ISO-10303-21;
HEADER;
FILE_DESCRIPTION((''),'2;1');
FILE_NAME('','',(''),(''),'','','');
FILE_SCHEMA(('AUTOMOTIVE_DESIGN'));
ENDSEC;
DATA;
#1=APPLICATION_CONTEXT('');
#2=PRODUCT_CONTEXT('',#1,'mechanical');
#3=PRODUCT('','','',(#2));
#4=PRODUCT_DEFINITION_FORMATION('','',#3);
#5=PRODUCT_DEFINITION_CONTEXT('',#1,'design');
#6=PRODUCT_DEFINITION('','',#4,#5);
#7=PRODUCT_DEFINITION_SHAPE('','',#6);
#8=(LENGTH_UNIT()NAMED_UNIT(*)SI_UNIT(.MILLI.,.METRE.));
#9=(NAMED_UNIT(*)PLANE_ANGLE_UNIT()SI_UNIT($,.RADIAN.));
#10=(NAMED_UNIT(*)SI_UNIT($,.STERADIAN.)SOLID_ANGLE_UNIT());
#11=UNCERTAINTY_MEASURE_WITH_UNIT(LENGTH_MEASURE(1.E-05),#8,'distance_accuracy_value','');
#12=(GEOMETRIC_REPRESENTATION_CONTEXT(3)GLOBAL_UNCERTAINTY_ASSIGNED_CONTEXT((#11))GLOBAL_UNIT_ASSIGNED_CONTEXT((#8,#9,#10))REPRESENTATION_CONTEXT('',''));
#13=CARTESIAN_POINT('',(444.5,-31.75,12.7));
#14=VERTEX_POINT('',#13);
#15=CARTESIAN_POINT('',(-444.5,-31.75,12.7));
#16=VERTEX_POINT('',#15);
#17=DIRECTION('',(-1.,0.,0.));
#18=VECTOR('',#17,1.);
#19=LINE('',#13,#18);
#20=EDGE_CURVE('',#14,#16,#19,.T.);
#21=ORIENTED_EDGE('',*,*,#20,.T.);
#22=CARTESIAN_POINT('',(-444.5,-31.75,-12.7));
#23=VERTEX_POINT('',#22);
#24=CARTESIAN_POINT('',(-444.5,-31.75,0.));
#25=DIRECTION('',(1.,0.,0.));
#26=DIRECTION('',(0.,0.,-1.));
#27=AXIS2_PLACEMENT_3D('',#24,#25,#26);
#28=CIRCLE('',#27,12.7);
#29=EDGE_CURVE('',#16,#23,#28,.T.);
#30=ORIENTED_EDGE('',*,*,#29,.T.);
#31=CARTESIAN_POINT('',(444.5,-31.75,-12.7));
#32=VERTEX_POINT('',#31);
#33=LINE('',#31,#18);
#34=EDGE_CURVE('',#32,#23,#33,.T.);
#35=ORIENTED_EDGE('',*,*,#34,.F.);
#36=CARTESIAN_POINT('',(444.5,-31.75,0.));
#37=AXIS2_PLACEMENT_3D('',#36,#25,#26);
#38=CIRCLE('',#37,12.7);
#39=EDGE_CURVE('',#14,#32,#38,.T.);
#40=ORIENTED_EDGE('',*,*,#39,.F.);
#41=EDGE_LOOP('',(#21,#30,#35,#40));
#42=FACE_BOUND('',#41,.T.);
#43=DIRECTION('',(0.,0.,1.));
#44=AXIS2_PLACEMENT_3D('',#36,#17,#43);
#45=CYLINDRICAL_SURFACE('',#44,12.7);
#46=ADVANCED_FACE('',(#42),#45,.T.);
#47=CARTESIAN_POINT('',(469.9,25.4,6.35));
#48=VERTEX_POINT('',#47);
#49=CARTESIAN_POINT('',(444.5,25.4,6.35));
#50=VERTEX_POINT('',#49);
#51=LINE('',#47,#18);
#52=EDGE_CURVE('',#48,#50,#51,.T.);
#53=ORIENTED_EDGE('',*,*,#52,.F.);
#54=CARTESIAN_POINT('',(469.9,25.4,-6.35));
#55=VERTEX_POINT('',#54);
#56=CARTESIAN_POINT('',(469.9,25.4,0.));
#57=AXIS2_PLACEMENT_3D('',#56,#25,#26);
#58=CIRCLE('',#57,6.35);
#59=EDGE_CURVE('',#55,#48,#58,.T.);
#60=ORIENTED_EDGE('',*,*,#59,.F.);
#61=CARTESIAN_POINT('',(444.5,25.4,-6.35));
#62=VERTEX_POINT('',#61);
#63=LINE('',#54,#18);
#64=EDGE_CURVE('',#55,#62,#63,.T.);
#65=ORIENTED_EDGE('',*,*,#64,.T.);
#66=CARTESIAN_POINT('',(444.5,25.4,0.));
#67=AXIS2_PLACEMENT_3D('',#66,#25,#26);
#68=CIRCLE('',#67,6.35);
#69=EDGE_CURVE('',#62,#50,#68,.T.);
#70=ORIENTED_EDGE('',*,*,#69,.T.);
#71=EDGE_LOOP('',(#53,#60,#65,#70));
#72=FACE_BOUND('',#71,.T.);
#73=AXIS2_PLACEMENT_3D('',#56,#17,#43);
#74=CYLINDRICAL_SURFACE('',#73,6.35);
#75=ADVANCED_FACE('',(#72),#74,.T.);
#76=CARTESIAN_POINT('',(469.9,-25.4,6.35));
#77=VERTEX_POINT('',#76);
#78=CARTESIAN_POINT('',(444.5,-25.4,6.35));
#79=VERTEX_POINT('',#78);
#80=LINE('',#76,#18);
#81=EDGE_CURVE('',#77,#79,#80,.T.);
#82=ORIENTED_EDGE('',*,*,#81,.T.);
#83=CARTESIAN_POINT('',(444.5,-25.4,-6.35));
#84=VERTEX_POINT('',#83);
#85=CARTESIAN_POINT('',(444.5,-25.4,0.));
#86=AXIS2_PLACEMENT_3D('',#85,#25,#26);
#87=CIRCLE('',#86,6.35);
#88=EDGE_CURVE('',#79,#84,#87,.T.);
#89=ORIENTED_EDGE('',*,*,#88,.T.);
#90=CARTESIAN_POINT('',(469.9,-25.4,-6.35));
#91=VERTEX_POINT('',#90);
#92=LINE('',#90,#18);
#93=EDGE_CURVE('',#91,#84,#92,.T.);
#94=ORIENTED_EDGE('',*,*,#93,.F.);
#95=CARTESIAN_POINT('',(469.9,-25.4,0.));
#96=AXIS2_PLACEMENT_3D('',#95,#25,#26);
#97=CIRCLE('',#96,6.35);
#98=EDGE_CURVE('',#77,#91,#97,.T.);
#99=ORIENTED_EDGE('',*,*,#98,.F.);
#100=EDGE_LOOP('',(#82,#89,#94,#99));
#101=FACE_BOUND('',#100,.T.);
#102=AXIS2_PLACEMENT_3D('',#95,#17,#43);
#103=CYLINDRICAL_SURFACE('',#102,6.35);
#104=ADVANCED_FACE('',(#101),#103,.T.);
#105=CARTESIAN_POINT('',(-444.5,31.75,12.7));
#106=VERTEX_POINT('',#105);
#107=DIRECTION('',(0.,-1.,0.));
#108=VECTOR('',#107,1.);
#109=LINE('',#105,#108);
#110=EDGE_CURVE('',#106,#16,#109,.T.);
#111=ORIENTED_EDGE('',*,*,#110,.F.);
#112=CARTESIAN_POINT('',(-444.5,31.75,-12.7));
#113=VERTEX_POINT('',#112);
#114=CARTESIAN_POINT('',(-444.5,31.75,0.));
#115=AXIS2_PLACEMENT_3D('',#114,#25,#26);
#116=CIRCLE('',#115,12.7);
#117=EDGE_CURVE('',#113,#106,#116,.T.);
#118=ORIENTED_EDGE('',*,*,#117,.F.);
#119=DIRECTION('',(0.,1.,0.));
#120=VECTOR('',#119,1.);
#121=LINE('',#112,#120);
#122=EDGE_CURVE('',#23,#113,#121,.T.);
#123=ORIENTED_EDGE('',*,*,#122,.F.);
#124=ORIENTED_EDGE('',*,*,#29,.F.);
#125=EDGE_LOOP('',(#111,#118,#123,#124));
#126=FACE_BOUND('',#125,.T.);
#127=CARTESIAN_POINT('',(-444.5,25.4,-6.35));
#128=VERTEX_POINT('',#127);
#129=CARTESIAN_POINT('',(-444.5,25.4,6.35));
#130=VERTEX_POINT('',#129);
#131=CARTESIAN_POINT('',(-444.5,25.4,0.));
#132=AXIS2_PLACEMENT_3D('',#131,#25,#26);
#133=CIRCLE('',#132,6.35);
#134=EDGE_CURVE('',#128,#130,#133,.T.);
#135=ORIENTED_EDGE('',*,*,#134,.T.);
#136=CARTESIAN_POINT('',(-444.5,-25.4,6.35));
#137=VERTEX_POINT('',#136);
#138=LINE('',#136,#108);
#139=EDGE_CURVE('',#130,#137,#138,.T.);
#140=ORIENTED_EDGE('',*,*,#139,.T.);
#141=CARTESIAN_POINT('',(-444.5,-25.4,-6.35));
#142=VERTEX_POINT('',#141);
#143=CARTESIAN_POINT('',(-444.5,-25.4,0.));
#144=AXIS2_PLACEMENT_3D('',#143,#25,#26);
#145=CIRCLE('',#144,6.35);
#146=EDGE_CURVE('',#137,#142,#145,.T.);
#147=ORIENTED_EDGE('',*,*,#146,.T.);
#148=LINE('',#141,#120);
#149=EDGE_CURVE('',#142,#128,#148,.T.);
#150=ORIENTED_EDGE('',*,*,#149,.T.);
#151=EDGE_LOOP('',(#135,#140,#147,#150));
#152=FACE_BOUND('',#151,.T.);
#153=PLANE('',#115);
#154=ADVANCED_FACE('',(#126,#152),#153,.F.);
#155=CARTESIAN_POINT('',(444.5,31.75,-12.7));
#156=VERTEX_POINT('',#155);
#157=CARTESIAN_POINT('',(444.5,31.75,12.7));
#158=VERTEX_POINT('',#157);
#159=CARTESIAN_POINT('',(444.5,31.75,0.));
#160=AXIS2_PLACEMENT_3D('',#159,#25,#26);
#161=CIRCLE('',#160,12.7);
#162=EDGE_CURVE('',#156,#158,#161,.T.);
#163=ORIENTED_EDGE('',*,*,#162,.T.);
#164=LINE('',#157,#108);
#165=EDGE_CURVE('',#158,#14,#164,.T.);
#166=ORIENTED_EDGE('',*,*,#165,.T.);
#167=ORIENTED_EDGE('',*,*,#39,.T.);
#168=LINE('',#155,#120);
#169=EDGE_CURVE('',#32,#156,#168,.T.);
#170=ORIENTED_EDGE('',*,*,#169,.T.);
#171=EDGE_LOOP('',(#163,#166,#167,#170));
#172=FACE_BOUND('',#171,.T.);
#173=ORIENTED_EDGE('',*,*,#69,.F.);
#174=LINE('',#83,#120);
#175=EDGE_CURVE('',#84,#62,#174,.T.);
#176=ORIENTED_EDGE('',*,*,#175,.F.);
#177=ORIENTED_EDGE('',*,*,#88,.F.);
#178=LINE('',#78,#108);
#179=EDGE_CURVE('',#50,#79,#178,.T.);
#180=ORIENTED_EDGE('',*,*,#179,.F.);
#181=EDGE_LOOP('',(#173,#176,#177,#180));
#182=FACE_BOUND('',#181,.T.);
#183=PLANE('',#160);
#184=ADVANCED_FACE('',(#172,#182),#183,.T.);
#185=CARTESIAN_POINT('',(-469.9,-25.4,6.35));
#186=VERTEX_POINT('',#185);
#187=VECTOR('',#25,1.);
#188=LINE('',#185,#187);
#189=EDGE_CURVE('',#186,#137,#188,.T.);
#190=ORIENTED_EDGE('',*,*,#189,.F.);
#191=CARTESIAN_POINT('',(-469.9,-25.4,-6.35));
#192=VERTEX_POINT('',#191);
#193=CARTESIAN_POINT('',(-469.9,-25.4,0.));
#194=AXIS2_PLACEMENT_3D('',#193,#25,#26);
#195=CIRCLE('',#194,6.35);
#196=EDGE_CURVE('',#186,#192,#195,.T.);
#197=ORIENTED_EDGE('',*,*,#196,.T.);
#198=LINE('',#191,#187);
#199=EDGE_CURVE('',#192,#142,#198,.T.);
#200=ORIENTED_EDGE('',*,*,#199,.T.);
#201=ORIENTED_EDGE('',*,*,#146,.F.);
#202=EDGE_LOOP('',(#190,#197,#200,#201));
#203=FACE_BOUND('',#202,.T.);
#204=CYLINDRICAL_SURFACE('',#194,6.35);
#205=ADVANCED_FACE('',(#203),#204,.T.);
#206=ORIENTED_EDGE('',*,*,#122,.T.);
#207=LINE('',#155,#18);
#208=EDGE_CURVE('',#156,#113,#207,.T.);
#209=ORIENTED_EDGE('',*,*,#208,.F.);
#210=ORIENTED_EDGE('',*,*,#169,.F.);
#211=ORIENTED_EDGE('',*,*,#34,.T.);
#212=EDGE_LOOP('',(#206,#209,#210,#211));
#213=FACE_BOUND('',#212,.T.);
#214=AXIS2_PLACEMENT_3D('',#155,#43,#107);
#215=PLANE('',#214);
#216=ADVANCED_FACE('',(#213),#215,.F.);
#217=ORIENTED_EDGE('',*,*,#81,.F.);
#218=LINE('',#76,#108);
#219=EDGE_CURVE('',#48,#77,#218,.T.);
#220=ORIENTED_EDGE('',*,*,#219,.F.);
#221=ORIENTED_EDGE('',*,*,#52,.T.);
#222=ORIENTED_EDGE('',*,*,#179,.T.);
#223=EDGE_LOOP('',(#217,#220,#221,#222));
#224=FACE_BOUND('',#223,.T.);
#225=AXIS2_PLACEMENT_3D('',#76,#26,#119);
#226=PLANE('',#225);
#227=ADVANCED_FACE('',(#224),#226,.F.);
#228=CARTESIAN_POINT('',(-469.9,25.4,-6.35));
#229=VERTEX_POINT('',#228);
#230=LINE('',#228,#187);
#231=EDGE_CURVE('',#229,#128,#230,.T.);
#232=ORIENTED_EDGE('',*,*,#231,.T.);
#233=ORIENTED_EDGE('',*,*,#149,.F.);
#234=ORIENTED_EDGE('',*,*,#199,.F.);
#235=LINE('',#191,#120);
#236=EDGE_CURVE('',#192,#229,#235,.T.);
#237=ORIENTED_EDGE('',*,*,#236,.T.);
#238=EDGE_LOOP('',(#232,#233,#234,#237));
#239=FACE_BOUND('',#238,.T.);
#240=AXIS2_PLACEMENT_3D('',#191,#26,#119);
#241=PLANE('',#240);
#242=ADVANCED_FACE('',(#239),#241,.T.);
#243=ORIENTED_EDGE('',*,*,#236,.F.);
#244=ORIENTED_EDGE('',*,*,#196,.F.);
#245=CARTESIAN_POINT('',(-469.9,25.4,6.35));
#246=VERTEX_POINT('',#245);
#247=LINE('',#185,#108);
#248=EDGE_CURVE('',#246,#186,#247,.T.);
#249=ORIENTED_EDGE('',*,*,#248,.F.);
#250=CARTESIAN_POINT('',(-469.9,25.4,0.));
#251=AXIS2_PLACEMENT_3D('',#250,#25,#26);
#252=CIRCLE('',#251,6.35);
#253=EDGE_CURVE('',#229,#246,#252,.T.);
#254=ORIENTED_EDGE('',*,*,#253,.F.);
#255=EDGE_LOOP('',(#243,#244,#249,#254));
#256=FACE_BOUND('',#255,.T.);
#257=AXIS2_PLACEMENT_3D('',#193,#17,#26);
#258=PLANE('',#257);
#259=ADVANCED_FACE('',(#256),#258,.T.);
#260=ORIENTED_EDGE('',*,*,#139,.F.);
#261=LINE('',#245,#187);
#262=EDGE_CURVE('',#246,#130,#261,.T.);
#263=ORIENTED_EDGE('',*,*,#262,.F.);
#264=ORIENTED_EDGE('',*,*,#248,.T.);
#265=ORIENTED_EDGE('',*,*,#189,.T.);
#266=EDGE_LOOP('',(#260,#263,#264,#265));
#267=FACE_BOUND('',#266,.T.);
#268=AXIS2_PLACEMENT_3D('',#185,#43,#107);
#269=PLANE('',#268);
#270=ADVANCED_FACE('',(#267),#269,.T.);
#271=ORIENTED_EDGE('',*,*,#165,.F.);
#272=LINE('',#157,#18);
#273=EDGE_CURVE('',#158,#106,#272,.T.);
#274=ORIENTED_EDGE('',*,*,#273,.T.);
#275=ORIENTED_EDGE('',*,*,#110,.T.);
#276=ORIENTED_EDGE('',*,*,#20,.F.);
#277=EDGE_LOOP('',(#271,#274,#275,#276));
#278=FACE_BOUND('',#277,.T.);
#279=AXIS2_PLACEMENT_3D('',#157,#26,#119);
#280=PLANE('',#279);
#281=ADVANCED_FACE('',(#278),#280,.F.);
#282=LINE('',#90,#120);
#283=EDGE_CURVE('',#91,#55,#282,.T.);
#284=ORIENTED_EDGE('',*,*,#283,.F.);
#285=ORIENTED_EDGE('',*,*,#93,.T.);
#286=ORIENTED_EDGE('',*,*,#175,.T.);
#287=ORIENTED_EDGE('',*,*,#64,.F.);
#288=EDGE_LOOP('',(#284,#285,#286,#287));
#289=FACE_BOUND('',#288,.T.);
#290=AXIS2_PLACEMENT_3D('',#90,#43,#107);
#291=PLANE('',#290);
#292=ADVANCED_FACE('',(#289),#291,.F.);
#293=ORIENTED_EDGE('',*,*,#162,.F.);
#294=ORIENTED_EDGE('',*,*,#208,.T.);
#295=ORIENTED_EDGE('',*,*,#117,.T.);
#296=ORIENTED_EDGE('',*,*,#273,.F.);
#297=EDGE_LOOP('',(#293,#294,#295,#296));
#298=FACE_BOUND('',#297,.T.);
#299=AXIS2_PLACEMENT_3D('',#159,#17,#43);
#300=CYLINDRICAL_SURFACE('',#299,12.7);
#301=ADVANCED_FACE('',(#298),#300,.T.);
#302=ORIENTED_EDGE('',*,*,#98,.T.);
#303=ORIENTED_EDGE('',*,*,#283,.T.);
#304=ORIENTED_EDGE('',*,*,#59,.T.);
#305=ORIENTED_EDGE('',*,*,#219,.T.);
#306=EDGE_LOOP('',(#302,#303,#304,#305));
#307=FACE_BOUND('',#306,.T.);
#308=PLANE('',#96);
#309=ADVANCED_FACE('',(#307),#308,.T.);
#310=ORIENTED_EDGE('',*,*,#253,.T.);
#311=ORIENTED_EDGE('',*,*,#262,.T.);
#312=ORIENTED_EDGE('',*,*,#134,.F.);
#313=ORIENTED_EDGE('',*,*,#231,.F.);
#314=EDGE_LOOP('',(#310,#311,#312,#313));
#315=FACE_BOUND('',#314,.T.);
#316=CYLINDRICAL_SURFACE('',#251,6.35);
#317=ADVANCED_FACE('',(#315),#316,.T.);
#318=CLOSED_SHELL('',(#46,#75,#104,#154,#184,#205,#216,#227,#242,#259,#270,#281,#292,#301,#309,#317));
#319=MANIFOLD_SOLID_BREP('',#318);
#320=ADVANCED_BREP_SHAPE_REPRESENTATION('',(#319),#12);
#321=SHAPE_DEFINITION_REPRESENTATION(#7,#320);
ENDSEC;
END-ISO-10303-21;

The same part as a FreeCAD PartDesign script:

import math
import FreeCAD as App
import Part
import Sketcher
Q = App.Units.Quantity

doc = App.newDocument("Part")
params = doc.addObject("Spreadsheet::Sheet", "Params")
for row, (alias, value) in enumerate([
    ("sketch1_radius", "0.5 in"),
    ("sketch1_width", "2.5 in"),
    ("pad1_length", "35 in"),
    ("sketch2_width", "2 in"),
    ("sketch2_radius", "0.25 in"),
    ("pad2_length", "1 in"),
], start=1):
    params.set(f"A{row}", alias)
    params.set(f"B{row}", "=" + value)
    params.setAlias(f"B{row}", alias)

body = doc.addObject("PartDesign::Body", "Body")

# Sketch on YZ plane
sketch1 = body.newObject("Sketcher::SketchObject", "Sketch")
sketch1.AttachmentSupport = (doc.getObject("YZ_Plane"), [""])
sketch1.MapMode = "FlatFace"
sketch1.addGeometry([
    Part.LineSegment(App.Vector(-32, -13, 0), App.Vector(32, -13, 0)),
    Part.ArcOfCircle(Part.Circle(App.Vector(32, 0, 0), App.Vector(0, 0, 1), 13), math.radians(-90), math.radians(90)),
    Part.LineSegment(App.Vector(32, 13, 0), App.Vector(-32, 13, 0)),
    Part.ArcOfCircle(Part.Circle(App.Vector(-32, 0, 0), App.Vector(0, 0, 1), 13), math.radians(90), math.radians(270)),
], False)
sketch1.addConstraint([
    Sketcher.Constraint("Tangent", 0, 2, 1, 1),
    Sketcher.Constraint("Tangent", 1, 2, 2, 1),
    Sketcher.Constraint("Tangent", 2, 2, 3, 1),
    Sketcher.Constraint("Tangent", 3, 2, 0, 1),
    Sketcher.Constraint("Horizontal", 0),
    Sketcher.Constraint("Horizontal", 2),
    Sketcher.Constraint("Symmetric", 1, 3, 3, 3, -1, 1),
    Sketcher.Constraint("Radius", 1, Q("0.5 in")),
    Sketcher.Constraint("DistanceX", 0, 1, 0, 2, Q("2.5 in")),
])
sketch1.setExpression("Constraints[7]", "Params.sketch1_radius")
sketch1.setExpression("Constraints[8]", "Params.sketch1_width")
pad1 = body.newObject("PartDesign::Pad", "Pad")
pad1.Profile = sketch1
pad1.setExpression("Length", "Params.pad1_length")
pad1.Midplane = True

# Sketch on YZ plane
sketch2 = body.newObject("Sketcher::SketchObject", "Sketch001")
sketch2.AttachmentSupport = (doc.getObject("YZ_Plane"), [""])
sketch2.MapMode = "FlatFace"
sketch2.AttachmentOffset = App.Placement(App.Vector(0, 0, 17.5 * 25.4), App.Rotation())
sketch2.addGeometry([
    Part.LineSegment(App.Vector(25, 6, 0), App.Vector(-25, 6, 0)),
    Part.ArcOfCircle(Part.Circle(App.Vector(-25, 0, 0), App.Vector(0, 0, 1), 6), math.radians(90), math.radians(270)),
    Part.LineSegment(App.Vector(-25, -6, 0), App.Vector(25, -6, 0)),
    Part.ArcOfCircle(Part.Circle(App.Vector(25, 0, 0), App.Vector(0, 0, 1), 6), math.radians(-90), math.radians(90)),
], False)
sketch2.addConstraint([
    Sketcher.Constraint("Tangent", 0, 2, 1, 1),
    Sketcher.Constraint("Tangent", 1, 2, 2, 1),
    Sketcher.Constraint("Tangent", 2, 2, 3, 1),
    Sketcher.Constraint("Tangent", 3, 2, 0, 1),
    Sketcher.Constraint("Horizontal", 0),
    Sketcher.Constraint("Horizontal", 2),
    Sketcher.Constraint("Symmetric", 1, 3, 3, 3, -1, 1),
    Sketcher.Constraint("DistanceX", 0, 2, 0, 1, Q("2 in")),
    Sketcher.Constraint("Radius", 1, Q("0.25 in")),
])
sketch2.setExpression("Constraints[7]", "Params.sketch2_width")
sketch2.setExpression("Constraints[8]", "Params.sketch2_radius")
pad2 = body.newObject("PartDesign::Pad", "Pad001")
pad2.Profile = sketch2
pad2.setExpression("Length", "Params.pad2_length")
doc.recompute()

mirrored = body.newObject("PartDesign::Mirrored", "Mirrored")
mirrored.Originals = [pad2]
mirrored.MirrorPlane = (doc.getObject("YZ_Plane"), [""])
body.Tip = mirrored

doc.recompute()
